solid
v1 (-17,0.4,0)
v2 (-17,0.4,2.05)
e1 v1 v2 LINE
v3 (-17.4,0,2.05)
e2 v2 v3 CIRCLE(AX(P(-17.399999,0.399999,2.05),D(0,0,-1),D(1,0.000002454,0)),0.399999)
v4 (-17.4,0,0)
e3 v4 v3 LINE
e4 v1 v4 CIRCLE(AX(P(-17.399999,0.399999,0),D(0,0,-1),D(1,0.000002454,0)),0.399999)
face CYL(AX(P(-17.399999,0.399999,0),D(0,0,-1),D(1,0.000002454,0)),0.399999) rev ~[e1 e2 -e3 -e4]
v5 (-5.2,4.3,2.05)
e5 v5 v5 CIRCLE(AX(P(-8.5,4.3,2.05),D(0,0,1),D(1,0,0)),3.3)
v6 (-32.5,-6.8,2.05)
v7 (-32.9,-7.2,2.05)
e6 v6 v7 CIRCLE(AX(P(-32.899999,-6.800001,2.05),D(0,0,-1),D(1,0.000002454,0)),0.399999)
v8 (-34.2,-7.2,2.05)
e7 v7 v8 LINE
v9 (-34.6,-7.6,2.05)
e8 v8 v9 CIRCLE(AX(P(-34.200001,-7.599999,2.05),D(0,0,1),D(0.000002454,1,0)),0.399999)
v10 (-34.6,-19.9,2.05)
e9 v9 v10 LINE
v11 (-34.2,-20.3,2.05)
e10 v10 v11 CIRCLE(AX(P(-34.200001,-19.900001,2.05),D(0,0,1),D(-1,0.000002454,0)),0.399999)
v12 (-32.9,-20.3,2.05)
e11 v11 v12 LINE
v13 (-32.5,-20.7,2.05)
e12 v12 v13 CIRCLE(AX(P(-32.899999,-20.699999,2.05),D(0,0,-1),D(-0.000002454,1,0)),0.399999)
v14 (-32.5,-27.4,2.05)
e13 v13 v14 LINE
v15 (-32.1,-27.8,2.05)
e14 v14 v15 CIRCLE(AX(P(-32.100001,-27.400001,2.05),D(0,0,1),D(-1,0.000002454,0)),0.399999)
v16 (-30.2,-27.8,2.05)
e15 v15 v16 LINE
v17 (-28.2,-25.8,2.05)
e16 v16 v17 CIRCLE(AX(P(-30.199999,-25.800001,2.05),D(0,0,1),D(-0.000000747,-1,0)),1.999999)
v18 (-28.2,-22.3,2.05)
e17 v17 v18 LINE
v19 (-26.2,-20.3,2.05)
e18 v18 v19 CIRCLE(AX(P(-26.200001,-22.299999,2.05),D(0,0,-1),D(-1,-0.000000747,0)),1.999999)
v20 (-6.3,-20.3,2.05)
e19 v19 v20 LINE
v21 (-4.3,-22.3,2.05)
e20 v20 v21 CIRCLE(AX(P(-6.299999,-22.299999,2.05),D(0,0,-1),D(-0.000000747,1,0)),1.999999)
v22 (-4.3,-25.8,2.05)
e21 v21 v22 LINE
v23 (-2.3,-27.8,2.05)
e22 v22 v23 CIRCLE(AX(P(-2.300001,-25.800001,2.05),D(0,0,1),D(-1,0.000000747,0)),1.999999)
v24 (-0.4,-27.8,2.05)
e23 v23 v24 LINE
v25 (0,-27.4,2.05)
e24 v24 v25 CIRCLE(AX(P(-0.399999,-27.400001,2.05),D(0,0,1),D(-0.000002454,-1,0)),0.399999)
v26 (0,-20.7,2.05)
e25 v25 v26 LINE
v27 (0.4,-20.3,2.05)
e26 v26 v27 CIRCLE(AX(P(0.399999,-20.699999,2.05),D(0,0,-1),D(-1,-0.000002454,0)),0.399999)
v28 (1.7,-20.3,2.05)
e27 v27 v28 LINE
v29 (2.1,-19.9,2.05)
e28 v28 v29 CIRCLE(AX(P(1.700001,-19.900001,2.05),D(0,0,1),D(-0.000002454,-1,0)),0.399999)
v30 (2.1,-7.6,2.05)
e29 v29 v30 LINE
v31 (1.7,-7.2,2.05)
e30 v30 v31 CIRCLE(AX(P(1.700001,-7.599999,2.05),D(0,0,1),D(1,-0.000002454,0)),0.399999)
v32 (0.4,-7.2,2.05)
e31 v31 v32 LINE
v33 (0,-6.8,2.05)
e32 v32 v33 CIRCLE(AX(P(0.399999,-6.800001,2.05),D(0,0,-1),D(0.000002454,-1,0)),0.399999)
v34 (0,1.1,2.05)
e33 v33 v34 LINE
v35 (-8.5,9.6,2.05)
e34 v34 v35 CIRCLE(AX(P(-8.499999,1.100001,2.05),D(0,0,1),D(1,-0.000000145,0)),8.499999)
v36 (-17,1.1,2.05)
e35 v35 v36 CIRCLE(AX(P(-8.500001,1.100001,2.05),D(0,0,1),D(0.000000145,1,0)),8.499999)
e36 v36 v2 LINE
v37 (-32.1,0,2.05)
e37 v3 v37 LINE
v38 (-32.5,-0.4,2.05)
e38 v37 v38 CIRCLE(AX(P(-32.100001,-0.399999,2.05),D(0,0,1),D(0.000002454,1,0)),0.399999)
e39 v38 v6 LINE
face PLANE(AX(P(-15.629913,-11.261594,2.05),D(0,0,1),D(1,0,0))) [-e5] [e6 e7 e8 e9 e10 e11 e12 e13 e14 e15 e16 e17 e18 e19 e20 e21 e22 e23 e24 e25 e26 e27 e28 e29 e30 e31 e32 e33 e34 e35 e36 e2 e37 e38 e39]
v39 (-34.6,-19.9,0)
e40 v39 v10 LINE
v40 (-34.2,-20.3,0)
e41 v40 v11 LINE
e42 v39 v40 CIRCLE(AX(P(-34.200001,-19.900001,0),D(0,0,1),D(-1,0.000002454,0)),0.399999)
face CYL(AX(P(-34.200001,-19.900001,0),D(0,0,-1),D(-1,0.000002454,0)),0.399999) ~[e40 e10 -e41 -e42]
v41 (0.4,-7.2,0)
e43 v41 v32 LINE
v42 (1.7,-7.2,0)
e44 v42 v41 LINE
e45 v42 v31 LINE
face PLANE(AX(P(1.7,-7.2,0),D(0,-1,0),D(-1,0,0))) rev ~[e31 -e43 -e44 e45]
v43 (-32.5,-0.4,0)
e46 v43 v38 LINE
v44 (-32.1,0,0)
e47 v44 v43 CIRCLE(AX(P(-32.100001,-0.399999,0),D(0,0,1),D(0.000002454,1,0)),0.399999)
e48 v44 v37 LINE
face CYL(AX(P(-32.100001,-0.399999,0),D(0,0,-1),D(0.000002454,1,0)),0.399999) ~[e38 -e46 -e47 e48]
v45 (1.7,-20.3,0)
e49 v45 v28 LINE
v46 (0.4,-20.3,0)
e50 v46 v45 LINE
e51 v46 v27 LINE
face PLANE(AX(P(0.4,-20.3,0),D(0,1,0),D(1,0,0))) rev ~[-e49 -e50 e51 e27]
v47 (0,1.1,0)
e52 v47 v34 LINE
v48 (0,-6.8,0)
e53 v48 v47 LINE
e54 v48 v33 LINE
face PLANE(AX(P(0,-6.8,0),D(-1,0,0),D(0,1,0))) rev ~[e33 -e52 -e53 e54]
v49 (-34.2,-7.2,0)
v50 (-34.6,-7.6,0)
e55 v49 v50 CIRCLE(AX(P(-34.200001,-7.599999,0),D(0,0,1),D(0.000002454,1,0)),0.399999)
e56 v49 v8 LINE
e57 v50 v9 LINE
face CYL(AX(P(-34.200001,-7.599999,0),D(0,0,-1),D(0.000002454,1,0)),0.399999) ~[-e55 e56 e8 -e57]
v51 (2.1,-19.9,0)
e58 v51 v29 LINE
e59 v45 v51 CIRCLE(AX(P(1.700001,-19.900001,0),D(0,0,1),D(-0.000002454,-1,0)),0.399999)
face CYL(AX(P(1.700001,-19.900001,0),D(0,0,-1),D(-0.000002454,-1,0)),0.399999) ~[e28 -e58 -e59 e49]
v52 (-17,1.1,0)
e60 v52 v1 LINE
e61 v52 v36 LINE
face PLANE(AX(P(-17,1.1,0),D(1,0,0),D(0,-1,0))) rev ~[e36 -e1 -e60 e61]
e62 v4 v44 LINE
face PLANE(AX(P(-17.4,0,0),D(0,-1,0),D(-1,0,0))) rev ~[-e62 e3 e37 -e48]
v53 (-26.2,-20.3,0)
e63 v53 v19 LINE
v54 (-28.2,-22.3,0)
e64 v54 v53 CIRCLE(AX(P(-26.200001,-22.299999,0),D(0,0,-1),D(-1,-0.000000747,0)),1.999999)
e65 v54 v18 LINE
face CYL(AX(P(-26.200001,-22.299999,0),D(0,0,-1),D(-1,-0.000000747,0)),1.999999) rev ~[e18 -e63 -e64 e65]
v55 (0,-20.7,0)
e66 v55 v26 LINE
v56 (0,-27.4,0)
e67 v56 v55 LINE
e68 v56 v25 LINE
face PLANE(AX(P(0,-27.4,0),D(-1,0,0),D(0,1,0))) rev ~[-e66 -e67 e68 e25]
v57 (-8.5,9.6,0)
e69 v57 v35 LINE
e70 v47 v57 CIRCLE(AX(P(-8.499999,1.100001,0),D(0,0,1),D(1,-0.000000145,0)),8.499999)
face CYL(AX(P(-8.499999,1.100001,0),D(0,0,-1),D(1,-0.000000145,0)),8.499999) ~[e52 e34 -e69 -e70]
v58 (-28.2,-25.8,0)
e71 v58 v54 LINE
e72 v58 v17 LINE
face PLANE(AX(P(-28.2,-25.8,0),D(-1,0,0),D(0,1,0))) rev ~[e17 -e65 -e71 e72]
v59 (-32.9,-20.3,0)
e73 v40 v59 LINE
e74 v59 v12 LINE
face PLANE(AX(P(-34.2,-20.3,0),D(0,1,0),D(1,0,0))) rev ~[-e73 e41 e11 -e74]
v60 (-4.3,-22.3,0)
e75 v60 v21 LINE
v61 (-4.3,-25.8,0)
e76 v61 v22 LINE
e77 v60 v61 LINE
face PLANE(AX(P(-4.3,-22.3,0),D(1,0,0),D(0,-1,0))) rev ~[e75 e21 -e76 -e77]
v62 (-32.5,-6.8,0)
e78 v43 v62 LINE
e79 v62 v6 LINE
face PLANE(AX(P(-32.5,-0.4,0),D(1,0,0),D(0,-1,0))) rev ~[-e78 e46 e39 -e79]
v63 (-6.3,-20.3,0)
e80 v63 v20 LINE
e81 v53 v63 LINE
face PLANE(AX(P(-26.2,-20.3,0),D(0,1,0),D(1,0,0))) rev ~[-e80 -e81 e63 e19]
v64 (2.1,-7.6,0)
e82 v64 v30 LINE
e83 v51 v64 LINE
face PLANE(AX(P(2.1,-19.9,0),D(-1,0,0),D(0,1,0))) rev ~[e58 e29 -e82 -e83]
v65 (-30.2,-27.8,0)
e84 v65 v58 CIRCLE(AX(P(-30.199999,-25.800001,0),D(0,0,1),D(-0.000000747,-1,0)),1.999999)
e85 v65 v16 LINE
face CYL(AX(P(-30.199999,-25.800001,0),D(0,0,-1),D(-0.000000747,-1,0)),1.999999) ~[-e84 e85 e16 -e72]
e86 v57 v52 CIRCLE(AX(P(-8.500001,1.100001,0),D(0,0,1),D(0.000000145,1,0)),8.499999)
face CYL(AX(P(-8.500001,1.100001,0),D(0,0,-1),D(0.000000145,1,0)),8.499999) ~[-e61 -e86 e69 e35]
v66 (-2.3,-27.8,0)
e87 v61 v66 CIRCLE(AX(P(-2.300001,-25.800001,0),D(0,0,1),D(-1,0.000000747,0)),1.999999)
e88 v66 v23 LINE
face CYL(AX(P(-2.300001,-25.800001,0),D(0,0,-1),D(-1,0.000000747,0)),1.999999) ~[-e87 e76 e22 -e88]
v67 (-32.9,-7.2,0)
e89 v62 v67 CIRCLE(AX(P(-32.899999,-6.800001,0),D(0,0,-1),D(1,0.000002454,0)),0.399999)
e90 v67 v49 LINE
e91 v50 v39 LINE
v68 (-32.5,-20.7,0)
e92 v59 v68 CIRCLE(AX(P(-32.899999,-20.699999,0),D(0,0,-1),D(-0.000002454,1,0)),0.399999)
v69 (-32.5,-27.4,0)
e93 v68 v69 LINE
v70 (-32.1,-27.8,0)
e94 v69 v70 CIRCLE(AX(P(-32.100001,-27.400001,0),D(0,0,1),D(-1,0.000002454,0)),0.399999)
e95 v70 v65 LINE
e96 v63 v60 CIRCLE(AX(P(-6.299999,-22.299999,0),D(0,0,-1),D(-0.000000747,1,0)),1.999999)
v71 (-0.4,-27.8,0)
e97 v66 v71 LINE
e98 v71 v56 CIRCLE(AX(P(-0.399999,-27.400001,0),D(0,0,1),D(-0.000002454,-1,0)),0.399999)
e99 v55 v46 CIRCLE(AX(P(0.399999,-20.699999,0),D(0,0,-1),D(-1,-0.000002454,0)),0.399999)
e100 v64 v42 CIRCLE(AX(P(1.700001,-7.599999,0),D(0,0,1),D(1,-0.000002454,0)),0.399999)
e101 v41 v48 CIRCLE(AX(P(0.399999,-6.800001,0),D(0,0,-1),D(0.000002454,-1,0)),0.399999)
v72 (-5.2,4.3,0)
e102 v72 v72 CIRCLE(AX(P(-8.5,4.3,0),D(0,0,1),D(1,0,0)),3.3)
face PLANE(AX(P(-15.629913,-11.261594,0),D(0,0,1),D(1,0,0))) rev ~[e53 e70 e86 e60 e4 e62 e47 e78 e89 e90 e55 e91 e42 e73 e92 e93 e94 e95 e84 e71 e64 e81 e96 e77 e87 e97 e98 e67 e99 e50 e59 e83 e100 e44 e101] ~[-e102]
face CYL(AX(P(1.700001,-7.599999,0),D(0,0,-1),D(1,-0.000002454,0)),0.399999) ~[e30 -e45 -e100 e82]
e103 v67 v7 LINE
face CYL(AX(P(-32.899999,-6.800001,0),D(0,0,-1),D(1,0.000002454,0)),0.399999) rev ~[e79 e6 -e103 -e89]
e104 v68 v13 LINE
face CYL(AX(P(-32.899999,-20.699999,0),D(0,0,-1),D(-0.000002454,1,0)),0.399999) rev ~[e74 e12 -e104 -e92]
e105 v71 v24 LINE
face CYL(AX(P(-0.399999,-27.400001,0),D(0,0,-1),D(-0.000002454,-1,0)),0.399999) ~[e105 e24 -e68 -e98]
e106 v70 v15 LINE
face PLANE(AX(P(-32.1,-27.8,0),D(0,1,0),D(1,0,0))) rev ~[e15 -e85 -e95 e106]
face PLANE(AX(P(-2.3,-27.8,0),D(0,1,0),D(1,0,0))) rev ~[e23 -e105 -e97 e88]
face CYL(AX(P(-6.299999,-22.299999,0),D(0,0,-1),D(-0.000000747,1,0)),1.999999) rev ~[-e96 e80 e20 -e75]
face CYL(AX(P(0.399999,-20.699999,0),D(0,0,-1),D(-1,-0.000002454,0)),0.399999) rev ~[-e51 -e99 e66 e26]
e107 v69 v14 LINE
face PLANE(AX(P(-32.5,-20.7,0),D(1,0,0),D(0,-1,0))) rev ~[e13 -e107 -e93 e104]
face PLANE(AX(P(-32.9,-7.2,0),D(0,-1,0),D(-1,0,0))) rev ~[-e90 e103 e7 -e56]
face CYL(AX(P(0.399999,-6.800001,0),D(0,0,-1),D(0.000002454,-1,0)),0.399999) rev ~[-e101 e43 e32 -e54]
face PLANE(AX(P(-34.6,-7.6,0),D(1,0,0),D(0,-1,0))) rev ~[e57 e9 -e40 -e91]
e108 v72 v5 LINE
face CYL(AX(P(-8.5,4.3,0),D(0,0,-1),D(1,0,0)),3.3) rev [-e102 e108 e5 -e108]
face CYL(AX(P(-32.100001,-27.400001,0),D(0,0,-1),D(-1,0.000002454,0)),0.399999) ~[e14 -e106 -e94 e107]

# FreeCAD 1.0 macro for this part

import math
import FreeCAD as App
import Part
import Sketcher
from FreeCAD import Vector
Q = App.Units.Quantity

doc = App.newDocument("Part")
body = doc.addObject("PartDesign::Body", "Body")

# Sketch on XY plane
sketch1 = body.newObject("Sketcher::SketchObject", "Sketch")
sketch1.AttachmentSupport = (doc.getObject("XY_Plane"), [""])
sketch1.MapMode = "FlatFace"
sketch1.addGeometry(Part.LineSegment(Vector(0, -6.8, 0), Vector(0, 1.1, 0)), False)
sketch1.addGeometry(Part.ArcOfCircle(Part.Circle(Vector(-8.5, 1.1, 0), Vector(0, 0, 1), 8.5), math.radians(0), math.radians(90)), False)
sketch1.addGeometry(Part.ArcOfCircle(Part.Circle(Vector(-8.5, 1.1, 0), Vector(0, 0, 1), 8.5), math.radians(90), math.radians(180)), False)
sketch1.addGeometry(Part.LineSegment(Vector(-17, 1.1, 0), Vector(-17, 0.4, 0)), False)
sketch1.addGeometry(Part.ArcOfCircle(Part.Circle(Vector(-17.4, 0.4, 0), Vector(0, 0, 1), 0.4), math.radians(-90), math.radians(0)), False)
sketch1.addGeometry(Part.LineSegment(Vector(-17.4, 0, 0), Vector(-32.1, 0, 0)), False)
sketch1.addGeometry(Part.ArcOfCircle(Part.Circle(Vector(-32.1, -0.4, 0), Vector(0, 0, 1), 0.4), math.radians(90), math.radians(180)), False)
sketch1.addGeometry(Part.LineSegment(Vector(-32.5, -0.4, 0), Vector(-32.5, -6.8, 0)), False)
sketch1.addGeometry(Part.ArcOfCircle(Part.Circle(Vector(-32.9, -6.8, 0), Vector(0, 0, 1), 0.4), math.radians(-90), math.radians(0)), False)
sketch1.addGeometry(Part.LineSegment(Vector(-32.9, -7.2, 0), Vector(-34.2, -7.2, 0)), False)
sketch1.addGeometry(Part.ArcOfCircle(Part.Circle(Vector(-34.2, -7.6, 0), Vector(0, 0, 1), 0.4), math.radians(90), math.radians(180)), False)
sketch1.addGeometry(Part.LineSegment(Vector(-34.6, -7.6, 0), Vector(-34.6, -19.9, 0)), False)
sketch1.addGeometry(Part.ArcOfCircle(Part.Circle(Vector(-34.2, -19.9, 0), Vector(0, 0, 1), 0.4), math.radians(180), math.radians(270)), False)
sketch1.addGeometry(Part.LineSegment(Vector(-34.2, -20.3, 0), Vector(-32.9, -20.3, 0)), False)
sketch1.addGeometry(Part.ArcOfCircle(Part.Circle(Vector(-32.9, -20.7, 0), Vector(0, 0, 1), 0.4), math.radians(0), math.radians(90)), False)
sketch1.addGeometry(Part.LineSegment(Vector(-32.5, -20.7, 0), Vector(-32.5, -27.4, 0)), False)
sketch1.addGeometry(Part.ArcOfCircle(Part.Circle(Vector(-32.1, -27.4, 0), Vector(0, 0, 1), 0.4), math.radians(180), math.radians(270)), False)
sketch1.addGeometry(Part.LineSegment(Vector(-32.1, -27.8, 0), Vector(-30.2, -27.8, 0)), False)
sketch1.addGeometry(Part.ArcOfCircle(Part.Circle(Vector(-30.2, -25.8, 0), Vector(0, 0, 1), 2), math.radians(-90), math.radians(0)), False)
sketch1.addGeometry(Part.LineSegment(Vector(-28.2, -25.8, 0), Vector(-28.2, -22.3, 0)), False)
sketch1.addGeometry(Part.ArcOfCircle(Part.Circle(Vector(-26.2, -22.3, 0), Vector(0, 0, 1), 2), math.radians(90), math.radians(180)), False)
sketch1.addGeometry(Part.LineSegment(Vector(-26.2, -20.3, 0), Vector(-6.3, -20.3, 0)), False)
sketch1.addGeometry(Part.ArcOfCircle(Part.Circle(Vector(-6.3, -22.3, 0), Vector(0, 0, 1), 2), math.radians(0), math.radians(90)), False)
sketch1.addGeometry(Part.LineSegment(Vector(-4.3, -22.3, 0), Vector(-4.3, -25.8, 0)), False)
sketch1.addGeometry(Part.ArcOfCircle(Part.Circle(Vector(-2.3, -25.8, 0), Vector(0, 0, 1), 2), math.radians(180), math.radians(270)), False)
sketch1.addGeometry(Part.LineSegment(Vector(-2.3, -27.8, 0), Vector(-0.4, -27.8, 0)), False)
sketch1.addGeometry(Part.ArcOfCircle(Part.Circle(Vector(-0.4, -27.4, 0), Vector(0, 0, 1), 0.4), math.radians(-90), math.radians(0)), False)
sketch1.addGeometry(Part.LineSegment(Vector(0, -27.4, 0), Vector(0, -20.7, 0)), False)
sketch1.addGeometry(Part.ArcOfCircle(Part.Circle(Vector(0.4, -20.7, 0), Vector(0, 0, 1), 0.4), math.radians(90), math.radians(180)), False)
sketch1.addGeometry(Part.LineSegment(Vector(0.4, -20.3, 0), Vector(1.7, -20.3, 0)), False)
sketch1.addGeometry(Part.ArcOfCircle(Part.Circle(Vector(1.7, -19.9, 0), Vector(0, 0, 1), 0.4), math.radians(-90), math.radians(0)), False)
sketch1.addGeometry(Part.LineSegment(Vector(2.1, -19.9, 0), Vector(2.1, -7.6, 0)), False)
sketch1.addGeometry(Part.ArcOfCircle(Part.Circle(Vector(1.7, -7.6, 0), Vector(0, 0, 1), 0.4), math.radians(0), math.radians(90)), False)
sketch1.addGeometry(Part.LineSegment(Vector(1.7, -7.2, 0), Vector(0.4, -7.2, 0)), False)
sketch1.addGeometry(Part.ArcOfCircle(Part.Circle(Vector(0.4, -6.8, 0), Vector(0, 0, 1), 0.4), math.radians(180), math.radians(270)), False)
sketch1.addGeometry(Part.Circle(Vector(-8.5, 4.3, 0), Vector(0, 0, 1), 3.3), False)
sketch1.addConstraint(Sketcher.Constraint("Tangent", 0, 2, 1, 1))
sketch1.addConstraint(Sketcher.Constraint("Tangent", 1, 2, 2, 1))
sketch1.addConstraint(Sketcher.Constraint("Tangent", 2, 2, 3, 1))
sketch1.addConstraint(Sketcher.Constraint("Coincident", 3, 2, 4, 2))
sketch1.addConstraint(Sketcher.Constraint("Coincident", 4, 1, 5, 1))
sketch1.addConstraint(Sketcher.Constraint("Coincident", 5, 2, 6, 1))
sketch1.addConstraint(Sketcher.Constraint("Coincident", 6, 2, 7, 1))
sketch1.addConstraint(Sketcher.Constraint("Coincident", 7, 2, 8, 2))
sketch1.addConstraint(Sketcher.Constraint("Coincident", 8, 1, 9, 1))
sketch1.addConstraint(Sketcher.Constraint("Coincident", 9, 2, 10, 1))
sketch1.addConstraint(Sketcher.Constraint("Coincident", 10, 2, 11, 1))
sketch1.addConstraint(Sketcher.Constraint("Coincident", 11, 2, 12, 1))
sketch1.addConstraint(Sketcher.Constraint("Coincident", 12, 2, 13, 1))
sketch1.addConstraint(Sketcher.Constraint("Coincident", 13, 2, 14, 2))
sketch1.addConstraint(Sketcher.Constraint("Coincident", 14, 1, 15, 1))
sketch1.addConstraint(Sketcher.Constraint("Coincident", 15, 2, 16, 1))
sketch1.addConstraint(Sketcher.Constraint("Coincident", 16, 2, 17, 1))
sketch1.addConstraint(Sketcher.Constraint("Tangent", 17, 2, 18, 1))
sketch1.addConstraint(Sketcher.Constraint("Tangent", 18, 2, 19, 1))
sketch1.addConstraint(Sketcher.Constraint("Tangent", 19, 2, 20, 2))
sketch1.addConstraint(Sketcher.Constraint("Tangent", 20, 1, 21, 1))
sketch1.addConstraint(Sketcher.Constraint("Tangent", 21, 2, 22, 2))
sketch1.addConstraint(Sketcher.Constraint("Tangent", 22, 1, 23, 1))
sketch1.addConstraint(Sketcher.Constraint("Tangent", 23, 2, 24, 1))
sketch1.addConstraint(Sketcher.Constraint("Tangent", 24, 2, 25, 1))
sketch1.addConstraint(Sketcher.Constraint("Coincident", 25, 2, 26, 1))
sketch1.addConstraint(Sketcher.Constraint("Coincident", 26, 2, 27, 1))
sketch1.addConstraint(Sketcher.Constraint("Coincident", 27, 2, 28, 2))
sketch1.addConstraint(Sketcher.Constraint("Coincident", 28, 1, 29, 1))
sketch1.addConstraint(Sketcher.Constraint("Coincident", 29, 2, 30, 1))
sketch1.addConstraint(Sketcher.Constraint("Coincident", 30, 2, 31, 1))
sketch1.addConstraint(Sketcher.Constraint("Coincident", 31, 2, 32, 1))
sketch1.addConstraint(Sketcher.Constraint("Coincident", 32, 2, 33, 1))
sketch1.addConstraint(Sketcher.Constraint("Coincident", 33, 2, 34, 2))
sketch1.addConstraint(Sketcher.Constraint("Coincident", 34, 1, 0, 1))
sketch1.addConstraint(Sketcher.Constraint("Vertical", 0))
sketch1.addConstraint(Sketcher.Constraint("Vertical", 3))
sketch1.addConstraint(Sketcher.Constraint("Horizontal", 5))
sketch1.addConstraint(Sketcher.Constraint("Vertical", 7))
sketch1.addConstraint(Sketcher.Constraint("Horizontal", 9))
sketch1.addConstraint(Sketcher.Constraint("Vertical", 11))
sketch1.addConstraint(Sketcher.Constraint("Horizontal", 13))
sketch1.addConstraint(Sketcher.Constraint("Vertical", 15))
sketch1.addConstraint(Sketcher.Constraint("Horizontal", 17))
sketch1.addConstraint(Sketcher.Constraint("Vertical", 19))
sketch1.addConstraint(Sketcher.Constraint("Horizontal", 21))
sketch1.addConstraint(Sketcher.Constraint("Vertical", 23))
sketch1.addConstraint(Sketcher.Constraint("Horizontal", 25))
sketch1.addConstraint(Sketcher.Constraint("Vertical", 27))
sketch1.addConstraint(Sketcher.Constraint("Horizontal", 29))
sketch1.addConstraint(Sketcher.Constraint("Vertical", 31))
sketch1.addConstraint(Sketcher.Constraint("Horizontal", 33))
sketch1.addConstraint(Sketcher.Constraint("Equal", 1, 2))
sketch1.addConstraint(Sketcher.Constraint("Equal", 4, 6))
sketch1.addConstraint(Sketcher.Constraint("Equal", 6, 8))
sketch1.addConstraint(Sketcher.Constraint("Equal", 8, 10))
sketch1.addConstraint(Sketcher.Constraint("Equal", 10, 12))
sketch1.addConstraint(Sketcher.Constraint("Equal", 12, 14))
sketch1.addConstraint(Sketcher.Constraint("Equal", 14, 16))
sketch1.addConstraint(Sketcher.Constraint("Equal", 18, 20))
sketch1.addConstraint(Sketcher.Constraint("Equal", 20, 22))
sketch1.addConstraint(Sketcher.Constraint("Equal", 22, 24))
sketch1.addConstraint(Sketcher.Constraint("Equal", 16, 26))
sketch1.addConstraint(Sketcher.Constraint("Equal", 26, 28))
sketch1.addConstraint(Sketcher.Constraint("Equal", 28, 30))
sketch1.addConstraint(Sketcher.Constraint("Equal", 30, 32))
sketch1.addConstraint(Sketcher.Constraint("Equal", 32, 34))
sketch1.addConstraint(Sketcher.Constraint("PointOnObject", 0, 2, -2))
sketch1.addConstraint(Sketcher.Constraint("PointOnObject", 4, 1, -1))
sketch1.addConstraint(Sketcher.Constraint("PointOnObject", 26, 2, -2))
sketch1.addConstraint(Sketcher.Constraint("Horizontal", 18, 3, 24, 3))
sketch1.addConstraint(Sketcher.Constraint("Horizontal", 14, 3, 28, 3))
sketch1.addConstraint(Sketcher.Constraint("Horizontal", 10, 3, 32, 3))
sketch1.addConstraint(Sketcher.Constraint("Horizontal", 4, 3, 3, 2))
sketch1.addConstraint(Sketcher.Constraint("Horizontal", 34, 3, 7, 2))
sketch1.addConstraint(Sketcher.Constraint("Horizontal", 32, 3, 10, 2))
sketch1.addConstraint(Sketcher.Constraint("Horizontal", 30, 3, 11, 2))
sketch1.addConstraint(Sketcher.Constraint("Horizontal", 28, 3, 14, 1))
sketch1.addConstraint(Sketcher.Constraint("Horizontal", 26, 3, 15, 2))
sketch1.addConstraint(Sketcher.Constraint("Horizontal", 13, 2, 20, 1))
sketch1.addConstraint(Sketcher.Constraint("Horizontal", 15, 2, 26, 2))
sketch1.addConstraint(Sketcher.Constraint("Horizontal", 14, 1, 27, 2))
sketch1.addConstraint(Sketcher.Constraint("Horizontal", 11, 2, 30, 2))
sketch1.addConstraint(Sketcher.Constraint("Horizontal", 10, 2, 31, 2))
sketch1.addConstraint(Sketcher.Constraint("Horizontal", 7, 2, 34, 1))
sketch1.addConstraint(Sketcher.Constraint("Vertical", 8, 3, 14, 3))
sketch1.addConstraint(Sketcher.Constraint("Vertical", 2, 3, 35, 3))
sketch1.addConstraint(Sketcher.Constraint("Vertical", 35, 3, 1, 2))
sketch1.addConstraint(Sketcher.Constraint("Vertical", 16, 3, 5, 2))
sketch1.addConstraint(Sketcher.Constraint("Vertical", 14, 3, 8, 1))
sketch1.addConstraint(Sketcher.Constraint("Vertical", 12, 3, 9, 2))
sketch1.addConstraint(Sketcher.Constraint("Vertical", 9, 2, 12, 2))
sketch1.addConstraint(Sketcher.Constraint("Vertical", 8, 1, 13, 2))
sketch1.addConstraint(Sketcher.Constraint("Vertical", 5, 2, 16, 2))
sketch1.addConstraint(Sketcher.Constraint("Vertical", 26, 3, 25, 2))
sketch1.addConstraint(Sketcher.Constraint("Vertical", 34, 3, 28, 1))
sketch1.addConstraint(Sketcher.Constraint("Vertical", 32, 3, 29, 2))
sketch1.addConstraint(Sketcher.Constraint("Vertical", 29, 2, 32, 2))
sketch1.addConstraint(Sketcher.Constraint("Vertical", 28, 1, 33, 2))
sketch1.addConstraint(Sketcher.Constraint("Equal", 17, 25))
sketch1.addConstraint(Sketcher.Constraint("Equal", 13, 29))
sketch1.addConstraint(Sketcher.Constraint("Radius", 18, Q("1.999999 mm")))
sketch1.addConstraint(Sketcher.Constraint("Diameter", 35, Q("6.6 mm")))
sketch1.addConstraint(Sketcher.Constraint("Radius", 1, Q("8.499999 mm")))
sketch1.addConstraint(Sketcher.Constraint("Radius", 4, Q("0.399999 mm")))
sketch1.addConstraint(Sketcher.Constraint("DistanceX", 5, 2, 5, 1, Q("14.7 mm")))
sketch1.addConstraint(Sketcher.Constraint("DistanceX", 9, 2, 9, 1, Q("1.3 mm")))
sketch1.addConstraint(Sketcher.Constraint("DistanceX", 17, 1, 17, 2, Q("1.9 mm")))
sketch1.addConstraint(Sketcher.Constraint("DistanceX", 21, 1, 21, 2, Q("19.9 mm")))
sketch1.addConstraint(Sketcher.Constraint("DistanceY", 0, 1, 0, 2, Q("7.9 mm")))
sketch1.addConstraint(Sketcher.Constraint("DistanceY", 3, 2, 3, 1, Q("0.7 mm")))
sketch1.addConstraint(Sketcher.Constraint("DistanceY", 7, 2, 7, 1, Q("6.4 mm")))
sketch1.addConstraint(Sketcher.Constraint("DistanceY", 11, 2, 11, 1, Q("12.3 mm")))
sketch1.addConstraint(Sketcher.Constraint("DistanceY", 15, 2, 15, 1, Q("6.7 mm")))
sketch1.addConstraint(Sketcher.Constraint("DistanceY", -1, 1, 35, 3, Q("4.3 mm")))
pad1 = body.newObject("PartDesign::Pad", "Pad")
pad1.Profile = sketch1
pad1.Length = 2.05

doc.recompute()
